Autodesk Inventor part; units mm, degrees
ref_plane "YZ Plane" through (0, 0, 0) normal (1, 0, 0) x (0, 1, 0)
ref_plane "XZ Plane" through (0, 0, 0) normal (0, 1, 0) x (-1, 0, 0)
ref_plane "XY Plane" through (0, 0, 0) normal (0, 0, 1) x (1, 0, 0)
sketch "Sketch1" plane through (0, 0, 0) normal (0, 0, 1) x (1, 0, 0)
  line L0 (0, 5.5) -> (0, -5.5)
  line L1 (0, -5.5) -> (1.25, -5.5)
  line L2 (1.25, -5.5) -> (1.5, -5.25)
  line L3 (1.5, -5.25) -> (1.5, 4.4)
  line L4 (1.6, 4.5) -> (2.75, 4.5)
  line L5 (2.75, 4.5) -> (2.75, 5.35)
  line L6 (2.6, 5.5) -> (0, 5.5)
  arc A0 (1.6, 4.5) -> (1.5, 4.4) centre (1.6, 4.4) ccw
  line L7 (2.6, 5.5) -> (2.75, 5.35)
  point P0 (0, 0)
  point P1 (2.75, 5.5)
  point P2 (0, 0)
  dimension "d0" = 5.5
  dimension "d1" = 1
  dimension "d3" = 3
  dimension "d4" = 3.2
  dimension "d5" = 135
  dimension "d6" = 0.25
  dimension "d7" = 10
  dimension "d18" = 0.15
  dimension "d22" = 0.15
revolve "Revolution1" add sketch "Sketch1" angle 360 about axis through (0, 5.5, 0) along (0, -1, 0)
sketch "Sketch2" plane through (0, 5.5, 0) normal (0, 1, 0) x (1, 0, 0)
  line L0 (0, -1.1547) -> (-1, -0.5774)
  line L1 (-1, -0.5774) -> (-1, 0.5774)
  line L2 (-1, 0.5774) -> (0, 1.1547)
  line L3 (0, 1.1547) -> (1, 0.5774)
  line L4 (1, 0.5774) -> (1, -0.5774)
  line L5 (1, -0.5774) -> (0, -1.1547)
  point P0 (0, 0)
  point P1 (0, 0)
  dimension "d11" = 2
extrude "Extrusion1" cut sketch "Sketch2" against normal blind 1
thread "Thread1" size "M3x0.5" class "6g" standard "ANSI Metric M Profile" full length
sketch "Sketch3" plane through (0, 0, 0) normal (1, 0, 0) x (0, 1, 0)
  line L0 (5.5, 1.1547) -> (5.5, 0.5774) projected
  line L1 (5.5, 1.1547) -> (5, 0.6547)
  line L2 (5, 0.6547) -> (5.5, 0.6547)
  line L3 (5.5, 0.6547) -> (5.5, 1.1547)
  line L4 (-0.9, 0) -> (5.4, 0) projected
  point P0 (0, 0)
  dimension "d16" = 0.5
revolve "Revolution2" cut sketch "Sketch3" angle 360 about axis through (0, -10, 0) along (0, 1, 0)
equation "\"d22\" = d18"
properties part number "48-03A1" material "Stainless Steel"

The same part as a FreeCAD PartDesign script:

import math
import FreeCAD as App
import Part
import Sketcher

V = App.Vector
Q = App.Units.Quantity

doc = App.newDocument("Part")
body = doc.addObject("PartDesign::Body", "Body")

sketch1 = doc.addObject("Sketcher::SketchObject", "Sketch")
body.addObject(sketch1)
sketch1.AttachmentSupport = (doc.XY_Plane, [""])
sketch1.MapMode = "FlatFace"
sketch1.addGeometry(Part.LineSegment(V(2.6, 5.5, 0), V(0, 5.5, 0)), False)
sketch1.addGeometry(Part.LineSegment(V(0, 5.5, 0), V(0, -5.5, 0)), False)
sketch1.addGeometry(Part.LineSegment(V(0, -5.5, 0), V(1.25, -5.5, 0)), False)
sketch1.addGeometry(Part.LineSegment(V(1.25, -5.5, 0), V(1.5, -5.25, 0)), False)
sketch1.addGeometry(Part.LineSegment(V(1.5, -5.25, 0), V(1.5, 4.4, 0)), False)
sketch1.addGeometry(Part.ArcOfCircle(Part.Circle(V(1.6, 4.4, 0), V(0, 0, 1), 0.1), math.radians(90), math.radians(180)), False)
sketch1.addGeometry(Part.LineSegment(V(1.6, 4.5, 0), V(2.75, 4.5, 0)), False)
sketch1.addGeometry(Part.LineSegment(V(2.75, 4.5, 0), V(2.75, 5.35, 0)), False)
sketch1.addGeometry(Part.LineSegment(V(2.75, 5.35, 0), V(2.6, 5.5, 0)), False)
sketch1.addConstraint(Sketcher.Constraint("Coincident", 0, 2, 1, 1))
sketch1.addConstraint(Sketcher.Constraint("Coincident", 1, 2, 2, 1))
sketch1.addConstraint(Sketcher.Constraint("Coincident", 2, 2, 3, 1))
sketch1.addConstraint(Sketcher.Constraint("Coincident", 3, 2, 4, 1))
sketch1.addConstraint(Sketcher.Constraint("Tangent", 4, 2, 5, 2))
sketch1.addConstraint(Sketcher.Constraint("Tangent", 5, 1, 6, 1))
sketch1.addConstraint(Sketcher.Constraint("Coincident", 6, 2, 7, 1))
sketch1.addConstraint(Sketcher.Constraint("Coincident", 7, 2, 8, 1))
sketch1.addConstraint(Sketcher.Constraint("Coincident", 8, 2, 0, 1))
sketch1.addConstraint(Sketcher.Constraint("Horizontal", 0))
sketch1.addConstraint(Sketcher.Constraint("Vertical", 1))
sketch1.addConstraint(Sketcher.Constraint("Horizontal", 2))
sketch1.addConstraint(Sketcher.Constraint("Vertical", 4))
sketch1.addConstraint(Sketcher.Constraint("Horizontal", 6))
sketch1.addConstraint(Sketcher.Constraint("Vertical", 7))
sketch1.addConstraint(Sketcher.Constraint("Symmetric", 0, 2, 1, 2, -1, 1))
sketch1.addConstraint(Sketcher.Constraint("Perpendicular", 3, 8))
sketch1.addConstraint(Sketcher.Constraint("Angle", 8, Q("135 deg")))
sketch1.addConstraint(Sketcher.Constraint("DistanceY", 5, 1, 0, 2, 1.0))
sketch1.addConstraint(Sketcher.Constraint("DistanceY", 2, 2, 5, 1, 10.0))
sketch1.addConstraint(Sketcher.Constraint("DistanceX", 5, 1, 8, 2, 1.0))
sketch1.addConstraint(Sketcher.Constraint("Radius", 5, 0.1))
sketch1.addConstraint(Sketcher.Constraint("DistanceX", 2, 2, 3, 2, 0.25))
sketch1.addConstraint(Sketcher.Constraint("DistanceY", 7, 2, 0, 2, 0.15))
sketch1.addConstraint(Sketcher.Constraint("DistanceX", 0, 2, 0, 1, 2.6))
revolution = doc.addObject("PartDesign::Revolution", "Revolution")
body.addObject(revolution)
revolution.Profile = sketch1
revolution.ReferenceAxis = (sketch1, ["V_Axis"])
revolution.Angle = 360

sketch2 = doc.addObject("Sketcher::SketchObject", "Sketch001")
body.addObject(sketch2)
sketch2.AttachmentSupport = (doc.XZ_Plane, [""])
sketch2.MapMode = "FlatFace"
sketch2.AttachmentOffset = App.Placement(V(0, 0, -5.5), App.Rotation())
sketch2.addGeometry(Part.LineSegment(V(-1, 0.6, 0), V(0, 1.2, 0)), False)
sketch2.addGeometry(Part.LineSegment(V(0, 1.2, 0), V(1, 0.6, 0)), False)
sketch2.addGeometry(Part.LineSegment(V(1, 0.6, 0), V(1, -0.6, 0)), False)
sketch2.addGeometry(Part.LineSegment(V(1, -0.6, 0), V(0, -1.2, 0)), False)
sketch2.addGeometry(Part.LineSegment(V(0, -1.2, 0), V(-1, -0.6, 0)), False)
sketch2.addGeometry(Part.LineSegment(V(-1, -0.6, 0), V(-1, 0.6, 0)), False)
sketch2.addConstraint(Sketcher.Constraint("Coincident", 0, 2, 1, 1))
sketch2.addConstraint(Sketcher.Constraint("Coincident", 1, 2, 2, 1))
sketch2.addConstraint(Sketcher.Constraint("Coincident", 2, 2, 3, 1))
sketch2.addConstraint(Sketcher.Constraint("Coincident", 3, 2, 4, 1))
sketch2.addConstraint(Sketcher.Constraint("Coincident", 4, 2, 5, 1))
sketch2.addConstraint(Sketcher.Constraint("Coincident", 5, 2, 0, 1))
sketch2.addConstraint(Sketcher.Constraint("Vertical", 2))
sketch2.addConstraint(Sketcher.Constraint("Vertical", 5))
sketch2.addConstraint(Sketcher.Constraint("Symmetric", 0, 2, 3, 2, -1, 1))
sketch2.addConstraint(Sketcher.Constraint("Symmetric", 1, 2, 4, 2, -1, 1))
sketch2.addConstraint(Sketcher.Constraint("PointOnObject", 0, 2, -2))
sketch2.addConstraint(Sketcher.Constraint("Parallel", 0, 3))
sketch2.addConstraint(Sketcher.Constraint("Horizontal", 2, 2, 4, 2))
sketch2.addConstraint(Sketcher.Constraint("DistanceX", 4, 2, 2, 2, 2.0))
sketch2.addConstraint(Sketcher.Constraint("DistanceY", 2, 2, 2, 1, 1.1548))
sketch2.addConstraint(Sketcher.Constraint("DistanceY", 2, 2, 0, 2, 1.732))
pocket1 = doc.addObject("PartDesign::Pocket", "Pocket")
body.addObject(pocket1)
pocket1.Profile = sketch2
pocket1.Length = 1
pocket1.Reversed = True

sketch3 = doc.addObject("Sketcher::SketchObject", "Sketch002")
body.addObject(sketch3)
sketch3.AttachmentSupport = (doc.YZ_Plane, [""])
sketch3.MapMode = "FlatFace"
sketch3.addGeometry(Part.LineSegment(V(5.5, 0.7, 0), V(5.5, 1.2, 0)), False)
sketch3.addGeometry(Part.LineSegment(V(5.5, 1.2, 0), V(5, 0.7, 0)), False)
sketch3.addGeometry(Part.LineSegment(V(5, 0.7, 0), V(5.5, 0.7, 0)), False)
sketch3.addConstraint(Sketcher.Constraint("Coincident", 0, 2, 1, 1))
sketch3.addConstraint(Sketcher.Constraint("Coincident", 1, 2, 2, 1))
sketch3.addConstraint(Sketcher.Constraint("Coincident", 2, 2, 0, 1))
sketch3.addConstraint(Sketcher.Constraint("Vertical", 0))
sketch3.addConstraint(Sketcher.Constraint("Horizontal", 2))
sketch3.addConstraint(Sketcher.Constraint("Equal", 2, 0))
sketch3.addConstraint(Sketcher.Constraint("DistanceX", 2, 1, 2, 2, 0.5))
sketch3.addConstraint(Sketcher.Constraint("DistanceX", -1, 1, 1, 2, 5.0))
sketch3.addConstraint(Sketcher.Constraint("DistanceY", -1, 1, 0, 2, 1.1547))
groove = doc.addObject("PartDesign::Groove", "Groove")
body.addObject(groove)
groove.Profile = sketch3
groove.ReferenceAxis = (sketch3, ["H_Axis"])
groove.Angle = 360

doc.recompute()
